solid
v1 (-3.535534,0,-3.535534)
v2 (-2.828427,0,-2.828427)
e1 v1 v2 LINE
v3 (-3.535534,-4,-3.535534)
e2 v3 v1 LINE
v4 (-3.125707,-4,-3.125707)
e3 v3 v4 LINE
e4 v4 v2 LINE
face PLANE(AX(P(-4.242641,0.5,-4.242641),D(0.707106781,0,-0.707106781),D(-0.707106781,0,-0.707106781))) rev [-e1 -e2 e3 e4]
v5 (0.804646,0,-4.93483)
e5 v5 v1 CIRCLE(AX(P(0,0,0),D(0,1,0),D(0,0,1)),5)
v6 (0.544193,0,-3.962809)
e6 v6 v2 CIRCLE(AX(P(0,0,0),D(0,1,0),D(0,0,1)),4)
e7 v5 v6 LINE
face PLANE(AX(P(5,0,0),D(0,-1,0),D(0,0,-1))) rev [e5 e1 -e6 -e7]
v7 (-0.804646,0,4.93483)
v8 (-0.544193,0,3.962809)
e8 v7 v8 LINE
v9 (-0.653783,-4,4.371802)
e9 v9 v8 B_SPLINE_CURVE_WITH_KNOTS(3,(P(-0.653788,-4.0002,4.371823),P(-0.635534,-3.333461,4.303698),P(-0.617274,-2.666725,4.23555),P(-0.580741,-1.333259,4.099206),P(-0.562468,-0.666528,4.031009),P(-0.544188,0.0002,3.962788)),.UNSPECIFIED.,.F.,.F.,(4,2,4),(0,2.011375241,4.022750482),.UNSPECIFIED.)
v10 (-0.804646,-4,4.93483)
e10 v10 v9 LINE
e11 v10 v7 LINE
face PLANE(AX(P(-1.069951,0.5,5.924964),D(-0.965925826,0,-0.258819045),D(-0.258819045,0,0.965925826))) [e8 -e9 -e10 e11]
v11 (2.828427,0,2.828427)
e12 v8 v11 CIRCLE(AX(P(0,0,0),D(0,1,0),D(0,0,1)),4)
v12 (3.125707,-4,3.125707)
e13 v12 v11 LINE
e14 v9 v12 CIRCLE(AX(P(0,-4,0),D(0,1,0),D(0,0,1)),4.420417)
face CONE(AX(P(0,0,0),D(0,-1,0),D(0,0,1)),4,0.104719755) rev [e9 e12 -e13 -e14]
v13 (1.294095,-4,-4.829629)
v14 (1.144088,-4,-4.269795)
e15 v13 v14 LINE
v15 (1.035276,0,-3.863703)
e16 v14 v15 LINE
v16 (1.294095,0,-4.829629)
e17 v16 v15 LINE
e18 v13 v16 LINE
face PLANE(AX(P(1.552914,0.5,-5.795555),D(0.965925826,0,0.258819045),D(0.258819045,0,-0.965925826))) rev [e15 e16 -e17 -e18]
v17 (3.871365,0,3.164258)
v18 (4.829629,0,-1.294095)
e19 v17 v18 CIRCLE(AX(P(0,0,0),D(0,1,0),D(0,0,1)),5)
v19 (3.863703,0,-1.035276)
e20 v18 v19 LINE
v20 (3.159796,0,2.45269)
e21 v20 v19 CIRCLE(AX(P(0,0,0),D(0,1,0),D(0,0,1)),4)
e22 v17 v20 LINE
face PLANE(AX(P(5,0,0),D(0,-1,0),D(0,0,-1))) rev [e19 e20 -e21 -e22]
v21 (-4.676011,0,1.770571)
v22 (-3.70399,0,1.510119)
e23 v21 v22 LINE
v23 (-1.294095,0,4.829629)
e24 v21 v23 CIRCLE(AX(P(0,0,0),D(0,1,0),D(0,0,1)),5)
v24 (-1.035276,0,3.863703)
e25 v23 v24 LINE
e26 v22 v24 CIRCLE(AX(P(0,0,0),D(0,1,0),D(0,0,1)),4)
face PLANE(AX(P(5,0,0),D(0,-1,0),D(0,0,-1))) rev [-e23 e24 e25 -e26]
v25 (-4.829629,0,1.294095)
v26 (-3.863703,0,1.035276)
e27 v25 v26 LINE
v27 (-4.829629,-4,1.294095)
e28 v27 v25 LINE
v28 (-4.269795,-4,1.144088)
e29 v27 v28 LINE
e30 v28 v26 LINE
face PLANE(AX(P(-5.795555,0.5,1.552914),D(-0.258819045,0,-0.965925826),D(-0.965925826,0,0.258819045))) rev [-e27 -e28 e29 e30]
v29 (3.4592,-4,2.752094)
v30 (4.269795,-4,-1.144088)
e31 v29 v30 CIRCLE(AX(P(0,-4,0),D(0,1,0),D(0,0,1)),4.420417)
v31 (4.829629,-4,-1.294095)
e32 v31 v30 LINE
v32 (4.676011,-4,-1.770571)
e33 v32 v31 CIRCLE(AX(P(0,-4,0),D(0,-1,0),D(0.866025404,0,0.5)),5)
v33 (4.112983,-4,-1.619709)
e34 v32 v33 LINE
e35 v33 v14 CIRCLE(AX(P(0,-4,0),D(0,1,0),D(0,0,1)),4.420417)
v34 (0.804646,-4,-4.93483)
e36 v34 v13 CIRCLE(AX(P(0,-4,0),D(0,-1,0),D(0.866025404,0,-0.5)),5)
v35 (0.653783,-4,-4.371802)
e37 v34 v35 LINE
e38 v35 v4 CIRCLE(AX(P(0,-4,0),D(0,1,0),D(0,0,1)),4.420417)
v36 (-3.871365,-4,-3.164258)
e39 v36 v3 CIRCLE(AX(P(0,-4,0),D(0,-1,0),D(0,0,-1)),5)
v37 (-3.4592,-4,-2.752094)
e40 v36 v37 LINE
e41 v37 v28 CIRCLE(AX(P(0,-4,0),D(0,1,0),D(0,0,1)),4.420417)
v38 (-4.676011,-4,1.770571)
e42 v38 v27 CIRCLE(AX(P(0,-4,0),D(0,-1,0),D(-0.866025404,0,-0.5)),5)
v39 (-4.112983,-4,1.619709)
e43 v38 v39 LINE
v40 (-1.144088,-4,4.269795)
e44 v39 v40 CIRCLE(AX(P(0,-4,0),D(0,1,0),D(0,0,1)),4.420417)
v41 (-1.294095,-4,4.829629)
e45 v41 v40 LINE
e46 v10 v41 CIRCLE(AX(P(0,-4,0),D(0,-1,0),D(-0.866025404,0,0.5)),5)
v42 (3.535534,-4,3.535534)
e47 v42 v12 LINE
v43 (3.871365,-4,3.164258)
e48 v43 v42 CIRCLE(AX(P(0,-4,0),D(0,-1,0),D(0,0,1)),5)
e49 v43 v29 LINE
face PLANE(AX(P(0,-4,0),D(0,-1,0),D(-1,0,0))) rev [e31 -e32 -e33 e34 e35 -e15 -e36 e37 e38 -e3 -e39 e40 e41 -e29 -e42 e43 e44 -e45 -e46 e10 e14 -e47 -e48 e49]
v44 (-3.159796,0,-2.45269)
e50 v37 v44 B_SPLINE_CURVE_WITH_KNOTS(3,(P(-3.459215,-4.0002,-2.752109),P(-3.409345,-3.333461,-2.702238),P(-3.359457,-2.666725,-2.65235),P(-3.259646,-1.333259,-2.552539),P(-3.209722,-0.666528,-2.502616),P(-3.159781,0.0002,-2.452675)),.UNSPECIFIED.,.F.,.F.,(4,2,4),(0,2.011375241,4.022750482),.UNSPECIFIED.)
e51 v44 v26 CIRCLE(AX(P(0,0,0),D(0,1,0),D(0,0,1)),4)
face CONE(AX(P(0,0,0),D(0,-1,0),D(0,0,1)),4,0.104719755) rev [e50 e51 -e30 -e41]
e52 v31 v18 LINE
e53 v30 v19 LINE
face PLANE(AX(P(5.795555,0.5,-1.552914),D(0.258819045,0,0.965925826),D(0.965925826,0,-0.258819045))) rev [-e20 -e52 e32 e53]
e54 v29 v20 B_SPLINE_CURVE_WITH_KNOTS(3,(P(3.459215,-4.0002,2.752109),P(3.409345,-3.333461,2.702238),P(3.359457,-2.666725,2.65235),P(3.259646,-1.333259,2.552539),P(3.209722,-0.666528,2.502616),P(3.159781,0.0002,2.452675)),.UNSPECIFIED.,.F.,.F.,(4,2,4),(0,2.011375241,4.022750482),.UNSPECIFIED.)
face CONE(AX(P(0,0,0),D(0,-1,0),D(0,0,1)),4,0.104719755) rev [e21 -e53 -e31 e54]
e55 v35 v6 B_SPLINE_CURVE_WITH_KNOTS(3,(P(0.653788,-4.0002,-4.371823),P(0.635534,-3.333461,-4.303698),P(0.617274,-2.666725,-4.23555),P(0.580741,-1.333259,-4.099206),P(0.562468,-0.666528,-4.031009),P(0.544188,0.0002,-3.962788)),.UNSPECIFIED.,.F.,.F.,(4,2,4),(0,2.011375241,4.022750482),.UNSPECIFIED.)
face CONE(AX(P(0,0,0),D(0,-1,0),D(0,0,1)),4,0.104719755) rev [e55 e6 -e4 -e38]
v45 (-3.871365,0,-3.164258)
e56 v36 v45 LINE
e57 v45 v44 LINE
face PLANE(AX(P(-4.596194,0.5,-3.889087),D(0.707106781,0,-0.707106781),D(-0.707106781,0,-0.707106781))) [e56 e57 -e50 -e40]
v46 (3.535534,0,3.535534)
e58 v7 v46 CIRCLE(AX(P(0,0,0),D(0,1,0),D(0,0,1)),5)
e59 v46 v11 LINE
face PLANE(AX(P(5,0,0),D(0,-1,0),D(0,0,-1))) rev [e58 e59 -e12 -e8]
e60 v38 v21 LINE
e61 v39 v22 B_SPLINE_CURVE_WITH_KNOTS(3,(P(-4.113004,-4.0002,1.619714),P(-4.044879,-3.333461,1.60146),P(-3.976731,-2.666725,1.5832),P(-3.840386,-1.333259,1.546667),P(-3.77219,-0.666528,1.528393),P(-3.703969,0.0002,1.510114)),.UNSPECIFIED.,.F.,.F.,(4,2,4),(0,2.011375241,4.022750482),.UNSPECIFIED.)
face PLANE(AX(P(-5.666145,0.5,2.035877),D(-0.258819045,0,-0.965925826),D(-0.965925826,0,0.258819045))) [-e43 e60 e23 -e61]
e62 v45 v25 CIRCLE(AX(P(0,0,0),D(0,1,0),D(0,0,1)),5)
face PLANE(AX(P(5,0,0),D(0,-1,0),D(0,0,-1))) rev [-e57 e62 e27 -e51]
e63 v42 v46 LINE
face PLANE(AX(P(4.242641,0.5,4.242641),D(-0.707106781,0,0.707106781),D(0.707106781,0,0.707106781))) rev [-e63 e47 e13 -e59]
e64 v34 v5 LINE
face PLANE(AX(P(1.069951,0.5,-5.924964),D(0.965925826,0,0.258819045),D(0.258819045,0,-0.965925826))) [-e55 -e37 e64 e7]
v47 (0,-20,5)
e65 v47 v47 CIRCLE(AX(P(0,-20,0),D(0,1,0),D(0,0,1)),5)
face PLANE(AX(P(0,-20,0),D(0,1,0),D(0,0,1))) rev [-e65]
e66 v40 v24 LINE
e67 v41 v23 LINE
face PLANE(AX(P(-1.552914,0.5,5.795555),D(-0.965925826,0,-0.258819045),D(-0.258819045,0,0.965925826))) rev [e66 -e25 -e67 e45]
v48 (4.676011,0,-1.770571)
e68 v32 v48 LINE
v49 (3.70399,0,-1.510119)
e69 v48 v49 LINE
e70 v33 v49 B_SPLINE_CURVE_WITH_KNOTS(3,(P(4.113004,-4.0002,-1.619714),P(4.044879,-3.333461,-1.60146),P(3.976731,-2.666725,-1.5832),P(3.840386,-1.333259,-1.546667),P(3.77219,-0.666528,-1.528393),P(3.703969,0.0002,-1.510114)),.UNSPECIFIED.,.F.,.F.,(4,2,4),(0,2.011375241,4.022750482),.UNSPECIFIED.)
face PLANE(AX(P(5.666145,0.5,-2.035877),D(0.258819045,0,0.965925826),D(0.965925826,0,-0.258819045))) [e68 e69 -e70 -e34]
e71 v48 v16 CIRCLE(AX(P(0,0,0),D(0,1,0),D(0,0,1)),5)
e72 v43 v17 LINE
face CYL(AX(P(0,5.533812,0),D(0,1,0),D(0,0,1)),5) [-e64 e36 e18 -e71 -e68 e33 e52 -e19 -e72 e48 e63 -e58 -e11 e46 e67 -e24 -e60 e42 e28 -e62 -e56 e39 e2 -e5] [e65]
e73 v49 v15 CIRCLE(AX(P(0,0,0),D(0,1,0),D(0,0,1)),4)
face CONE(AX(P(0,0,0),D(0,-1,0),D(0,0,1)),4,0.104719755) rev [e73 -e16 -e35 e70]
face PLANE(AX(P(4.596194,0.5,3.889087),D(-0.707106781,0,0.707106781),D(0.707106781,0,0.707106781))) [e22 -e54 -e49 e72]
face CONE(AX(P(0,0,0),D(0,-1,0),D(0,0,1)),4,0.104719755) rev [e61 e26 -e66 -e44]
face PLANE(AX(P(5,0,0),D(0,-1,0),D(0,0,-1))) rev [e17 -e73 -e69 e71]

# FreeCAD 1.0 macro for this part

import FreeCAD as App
import Part
import Sketcher
from FreeCAD import Vector
Q = App.Units.Quantity

doc = App.newDocument("Part")
body = doc.addObject("PartDesign::Body", "Body")

# Sketch on XY plane
sketch1 = body.newObject("Sketcher::SketchObject", "Sketch")
sketch1.AttachmentSupport = (doc.getObject("XY_Plane"), [""])
sketch1.MapMode = "FlatFace"
sketch1.addGeometry(Part.LineSegment(Vector(0, 0, 0), Vector(0, -20, 0)), False)
sketch1.addGeometry(Part.LineSegment(Vector(0, -20, 0), Vector(5, -20, 0)), False)
sketch1.addGeometry(Part.LineSegment(Vector(5, -20, 0), Vector(5, 0, 0)), False)
sketch1.addGeometry(Part.LineSegment(Vector(5, 0, 0), Vector(0, 0, 0)), False)
sketch1.addConstraint(Sketcher.Constraint("Coincident", 0, 2, 1, 1))
sketch1.addConstraint(Sketcher.Constraint("Coincident", 1, 2, 2, 1))
sketch1.addConstraint(Sketcher.Constraint("Coincident", 2, 2, 3, 1))
sketch1.addConstraint(Sketcher.Constraint("Coincident", 3, 2, 0, 1))
sketch1.addConstraint(Sketcher.Constraint("Vertical", 0))
sketch1.addConstraint(Sketcher.Constraint("Horizontal", 1))
sketch1.addConstraint(Sketcher.Constraint("Vertical", 2))
sketch1.addConstraint(Sketcher.Constraint("Horizontal", 3))
sketch1.addConstraint(Sketcher.Constraint("Coincident", 3, 2, -1, 1))
sketch1.addConstraint(Sketcher.Constraint("DistanceX", 1, 1, 1, 2, Q("5 mm")))
sketch1.addConstraint(Sketcher.Constraint("DistanceY", 0, 2, 0, 1, Q("20 mm")))
revolution = body.newObject("PartDesign::Revolution", "Revolution")
revolution.Profile = sketch1
revolution.ReferenceAxis = (sketch1, ["V_Axis"])
revolution.Angle = 360

# Sketch on XZ plane
sketch2 = body.newObject("Sketcher::SketchObject", "Sketch001")
sketch2.AttachmentSupport = (doc.getObject("XZ_Plane"), [""])
sketch2.MapMode = "FlatFace"
sketch2.AttachmentOffset = App.Placement(Vector(0, 0, 4), App.Rotation())
sketch2.addGeometry(Part.LineSegment(Vector(0, 0, 0), Vector(-4.242641, -4.242641, 0)), False)
sketch2.addGeometry(Part.LineSegment(Vector(-4.242641, -4.242641, 0), Vector(-4.596194, -3.889087, 0)), False)
sketch2.addGeometry(Part.LineSegment(Vector(-4.596194, -3.889087, 0), Vector(-0.353553, 0.353553, 0)), False)
sketch2.addGeometry(Part.LineSegment(Vector(-0.353553, 0.353553, 0), Vector(0, 0, 0)), False)
sketch2.addConstraint(Sketcher.Constraint("Coincident", 0, 2, 1, 1))
sketch2.addConstraint(Sketcher.Constraint("Coincident", 1, 2, 2, 1))
sketch2.addConstraint(Sketcher.Constraint("Coincident", 2, 2, 3, 1))
sketch2.addConstraint(Sketcher.Constraint("Coincident", 3, 2, 0, 1))
sketch2.addConstraint(Sketcher.Constraint("Coincident", 3, 2, -1, 1))
sketch2.addConstraint(Sketcher.Constraint("Perpendicular", 0, 1))
sketch2.addConstraint(Sketcher.Constraint("Perpendicular", 1, 2))
sketch2.addConstraint(Sketcher.Constraint("Perpendicular", 2, 3))
sketch2.addConstraint(Sketcher.Constraint("Angle", 0, Q("-135 deg")))
sketch2.addConstraint(Sketcher.Constraint("Distance", 0, Q("6 mm")))
sketch2.addConstraint(Sketcher.Constraint("Distance", 1, Q("0.5 mm")))
pocket1 = body.newObject("PartDesign::Pocket", "Pocket")
pocket1.Profile = sketch2
pocket1.Length = 4.5
doc.recompute()

polarpattern = body.newObject("PartDesign::PolarPattern", "PolarPattern")
polarpattern.Originals = [pocket1]
polarpattern.Axis = (doc.getObject("Y_Axis"), [""])
polarpattern.Angle = 360
polarpattern.Occurrences = 6
body.Tip = polarpattern

# Sketch on XZ plane
sketch3 = body.newObject("Sketcher::SketchObject", "Sketch002")
sketch3.AttachmentSupport = (doc.getObject("XZ_Plane"), [""])
sketch3.MapMode = "FlatFace"
sketch3.addGeometry(Part.Circle(Vector(0, 0, 0), Vector(0, 0, 1), 4), False)
sketch3.addConstraint(Sketcher.Constraint("Coincident", 0, 3, -1, 1))
sketch3.addConstraint(Sketcher.Constraint("Diameter", 0, Q("8 mm")))
pocket2 = body.newObject("PartDesign::Pocket", "Pocket001")
pocket2.Profile = sketch3
pocket2.Length = 4
pocket2.Reversed = True
pocket2.TaperAngle = 6

doc.recompute()
